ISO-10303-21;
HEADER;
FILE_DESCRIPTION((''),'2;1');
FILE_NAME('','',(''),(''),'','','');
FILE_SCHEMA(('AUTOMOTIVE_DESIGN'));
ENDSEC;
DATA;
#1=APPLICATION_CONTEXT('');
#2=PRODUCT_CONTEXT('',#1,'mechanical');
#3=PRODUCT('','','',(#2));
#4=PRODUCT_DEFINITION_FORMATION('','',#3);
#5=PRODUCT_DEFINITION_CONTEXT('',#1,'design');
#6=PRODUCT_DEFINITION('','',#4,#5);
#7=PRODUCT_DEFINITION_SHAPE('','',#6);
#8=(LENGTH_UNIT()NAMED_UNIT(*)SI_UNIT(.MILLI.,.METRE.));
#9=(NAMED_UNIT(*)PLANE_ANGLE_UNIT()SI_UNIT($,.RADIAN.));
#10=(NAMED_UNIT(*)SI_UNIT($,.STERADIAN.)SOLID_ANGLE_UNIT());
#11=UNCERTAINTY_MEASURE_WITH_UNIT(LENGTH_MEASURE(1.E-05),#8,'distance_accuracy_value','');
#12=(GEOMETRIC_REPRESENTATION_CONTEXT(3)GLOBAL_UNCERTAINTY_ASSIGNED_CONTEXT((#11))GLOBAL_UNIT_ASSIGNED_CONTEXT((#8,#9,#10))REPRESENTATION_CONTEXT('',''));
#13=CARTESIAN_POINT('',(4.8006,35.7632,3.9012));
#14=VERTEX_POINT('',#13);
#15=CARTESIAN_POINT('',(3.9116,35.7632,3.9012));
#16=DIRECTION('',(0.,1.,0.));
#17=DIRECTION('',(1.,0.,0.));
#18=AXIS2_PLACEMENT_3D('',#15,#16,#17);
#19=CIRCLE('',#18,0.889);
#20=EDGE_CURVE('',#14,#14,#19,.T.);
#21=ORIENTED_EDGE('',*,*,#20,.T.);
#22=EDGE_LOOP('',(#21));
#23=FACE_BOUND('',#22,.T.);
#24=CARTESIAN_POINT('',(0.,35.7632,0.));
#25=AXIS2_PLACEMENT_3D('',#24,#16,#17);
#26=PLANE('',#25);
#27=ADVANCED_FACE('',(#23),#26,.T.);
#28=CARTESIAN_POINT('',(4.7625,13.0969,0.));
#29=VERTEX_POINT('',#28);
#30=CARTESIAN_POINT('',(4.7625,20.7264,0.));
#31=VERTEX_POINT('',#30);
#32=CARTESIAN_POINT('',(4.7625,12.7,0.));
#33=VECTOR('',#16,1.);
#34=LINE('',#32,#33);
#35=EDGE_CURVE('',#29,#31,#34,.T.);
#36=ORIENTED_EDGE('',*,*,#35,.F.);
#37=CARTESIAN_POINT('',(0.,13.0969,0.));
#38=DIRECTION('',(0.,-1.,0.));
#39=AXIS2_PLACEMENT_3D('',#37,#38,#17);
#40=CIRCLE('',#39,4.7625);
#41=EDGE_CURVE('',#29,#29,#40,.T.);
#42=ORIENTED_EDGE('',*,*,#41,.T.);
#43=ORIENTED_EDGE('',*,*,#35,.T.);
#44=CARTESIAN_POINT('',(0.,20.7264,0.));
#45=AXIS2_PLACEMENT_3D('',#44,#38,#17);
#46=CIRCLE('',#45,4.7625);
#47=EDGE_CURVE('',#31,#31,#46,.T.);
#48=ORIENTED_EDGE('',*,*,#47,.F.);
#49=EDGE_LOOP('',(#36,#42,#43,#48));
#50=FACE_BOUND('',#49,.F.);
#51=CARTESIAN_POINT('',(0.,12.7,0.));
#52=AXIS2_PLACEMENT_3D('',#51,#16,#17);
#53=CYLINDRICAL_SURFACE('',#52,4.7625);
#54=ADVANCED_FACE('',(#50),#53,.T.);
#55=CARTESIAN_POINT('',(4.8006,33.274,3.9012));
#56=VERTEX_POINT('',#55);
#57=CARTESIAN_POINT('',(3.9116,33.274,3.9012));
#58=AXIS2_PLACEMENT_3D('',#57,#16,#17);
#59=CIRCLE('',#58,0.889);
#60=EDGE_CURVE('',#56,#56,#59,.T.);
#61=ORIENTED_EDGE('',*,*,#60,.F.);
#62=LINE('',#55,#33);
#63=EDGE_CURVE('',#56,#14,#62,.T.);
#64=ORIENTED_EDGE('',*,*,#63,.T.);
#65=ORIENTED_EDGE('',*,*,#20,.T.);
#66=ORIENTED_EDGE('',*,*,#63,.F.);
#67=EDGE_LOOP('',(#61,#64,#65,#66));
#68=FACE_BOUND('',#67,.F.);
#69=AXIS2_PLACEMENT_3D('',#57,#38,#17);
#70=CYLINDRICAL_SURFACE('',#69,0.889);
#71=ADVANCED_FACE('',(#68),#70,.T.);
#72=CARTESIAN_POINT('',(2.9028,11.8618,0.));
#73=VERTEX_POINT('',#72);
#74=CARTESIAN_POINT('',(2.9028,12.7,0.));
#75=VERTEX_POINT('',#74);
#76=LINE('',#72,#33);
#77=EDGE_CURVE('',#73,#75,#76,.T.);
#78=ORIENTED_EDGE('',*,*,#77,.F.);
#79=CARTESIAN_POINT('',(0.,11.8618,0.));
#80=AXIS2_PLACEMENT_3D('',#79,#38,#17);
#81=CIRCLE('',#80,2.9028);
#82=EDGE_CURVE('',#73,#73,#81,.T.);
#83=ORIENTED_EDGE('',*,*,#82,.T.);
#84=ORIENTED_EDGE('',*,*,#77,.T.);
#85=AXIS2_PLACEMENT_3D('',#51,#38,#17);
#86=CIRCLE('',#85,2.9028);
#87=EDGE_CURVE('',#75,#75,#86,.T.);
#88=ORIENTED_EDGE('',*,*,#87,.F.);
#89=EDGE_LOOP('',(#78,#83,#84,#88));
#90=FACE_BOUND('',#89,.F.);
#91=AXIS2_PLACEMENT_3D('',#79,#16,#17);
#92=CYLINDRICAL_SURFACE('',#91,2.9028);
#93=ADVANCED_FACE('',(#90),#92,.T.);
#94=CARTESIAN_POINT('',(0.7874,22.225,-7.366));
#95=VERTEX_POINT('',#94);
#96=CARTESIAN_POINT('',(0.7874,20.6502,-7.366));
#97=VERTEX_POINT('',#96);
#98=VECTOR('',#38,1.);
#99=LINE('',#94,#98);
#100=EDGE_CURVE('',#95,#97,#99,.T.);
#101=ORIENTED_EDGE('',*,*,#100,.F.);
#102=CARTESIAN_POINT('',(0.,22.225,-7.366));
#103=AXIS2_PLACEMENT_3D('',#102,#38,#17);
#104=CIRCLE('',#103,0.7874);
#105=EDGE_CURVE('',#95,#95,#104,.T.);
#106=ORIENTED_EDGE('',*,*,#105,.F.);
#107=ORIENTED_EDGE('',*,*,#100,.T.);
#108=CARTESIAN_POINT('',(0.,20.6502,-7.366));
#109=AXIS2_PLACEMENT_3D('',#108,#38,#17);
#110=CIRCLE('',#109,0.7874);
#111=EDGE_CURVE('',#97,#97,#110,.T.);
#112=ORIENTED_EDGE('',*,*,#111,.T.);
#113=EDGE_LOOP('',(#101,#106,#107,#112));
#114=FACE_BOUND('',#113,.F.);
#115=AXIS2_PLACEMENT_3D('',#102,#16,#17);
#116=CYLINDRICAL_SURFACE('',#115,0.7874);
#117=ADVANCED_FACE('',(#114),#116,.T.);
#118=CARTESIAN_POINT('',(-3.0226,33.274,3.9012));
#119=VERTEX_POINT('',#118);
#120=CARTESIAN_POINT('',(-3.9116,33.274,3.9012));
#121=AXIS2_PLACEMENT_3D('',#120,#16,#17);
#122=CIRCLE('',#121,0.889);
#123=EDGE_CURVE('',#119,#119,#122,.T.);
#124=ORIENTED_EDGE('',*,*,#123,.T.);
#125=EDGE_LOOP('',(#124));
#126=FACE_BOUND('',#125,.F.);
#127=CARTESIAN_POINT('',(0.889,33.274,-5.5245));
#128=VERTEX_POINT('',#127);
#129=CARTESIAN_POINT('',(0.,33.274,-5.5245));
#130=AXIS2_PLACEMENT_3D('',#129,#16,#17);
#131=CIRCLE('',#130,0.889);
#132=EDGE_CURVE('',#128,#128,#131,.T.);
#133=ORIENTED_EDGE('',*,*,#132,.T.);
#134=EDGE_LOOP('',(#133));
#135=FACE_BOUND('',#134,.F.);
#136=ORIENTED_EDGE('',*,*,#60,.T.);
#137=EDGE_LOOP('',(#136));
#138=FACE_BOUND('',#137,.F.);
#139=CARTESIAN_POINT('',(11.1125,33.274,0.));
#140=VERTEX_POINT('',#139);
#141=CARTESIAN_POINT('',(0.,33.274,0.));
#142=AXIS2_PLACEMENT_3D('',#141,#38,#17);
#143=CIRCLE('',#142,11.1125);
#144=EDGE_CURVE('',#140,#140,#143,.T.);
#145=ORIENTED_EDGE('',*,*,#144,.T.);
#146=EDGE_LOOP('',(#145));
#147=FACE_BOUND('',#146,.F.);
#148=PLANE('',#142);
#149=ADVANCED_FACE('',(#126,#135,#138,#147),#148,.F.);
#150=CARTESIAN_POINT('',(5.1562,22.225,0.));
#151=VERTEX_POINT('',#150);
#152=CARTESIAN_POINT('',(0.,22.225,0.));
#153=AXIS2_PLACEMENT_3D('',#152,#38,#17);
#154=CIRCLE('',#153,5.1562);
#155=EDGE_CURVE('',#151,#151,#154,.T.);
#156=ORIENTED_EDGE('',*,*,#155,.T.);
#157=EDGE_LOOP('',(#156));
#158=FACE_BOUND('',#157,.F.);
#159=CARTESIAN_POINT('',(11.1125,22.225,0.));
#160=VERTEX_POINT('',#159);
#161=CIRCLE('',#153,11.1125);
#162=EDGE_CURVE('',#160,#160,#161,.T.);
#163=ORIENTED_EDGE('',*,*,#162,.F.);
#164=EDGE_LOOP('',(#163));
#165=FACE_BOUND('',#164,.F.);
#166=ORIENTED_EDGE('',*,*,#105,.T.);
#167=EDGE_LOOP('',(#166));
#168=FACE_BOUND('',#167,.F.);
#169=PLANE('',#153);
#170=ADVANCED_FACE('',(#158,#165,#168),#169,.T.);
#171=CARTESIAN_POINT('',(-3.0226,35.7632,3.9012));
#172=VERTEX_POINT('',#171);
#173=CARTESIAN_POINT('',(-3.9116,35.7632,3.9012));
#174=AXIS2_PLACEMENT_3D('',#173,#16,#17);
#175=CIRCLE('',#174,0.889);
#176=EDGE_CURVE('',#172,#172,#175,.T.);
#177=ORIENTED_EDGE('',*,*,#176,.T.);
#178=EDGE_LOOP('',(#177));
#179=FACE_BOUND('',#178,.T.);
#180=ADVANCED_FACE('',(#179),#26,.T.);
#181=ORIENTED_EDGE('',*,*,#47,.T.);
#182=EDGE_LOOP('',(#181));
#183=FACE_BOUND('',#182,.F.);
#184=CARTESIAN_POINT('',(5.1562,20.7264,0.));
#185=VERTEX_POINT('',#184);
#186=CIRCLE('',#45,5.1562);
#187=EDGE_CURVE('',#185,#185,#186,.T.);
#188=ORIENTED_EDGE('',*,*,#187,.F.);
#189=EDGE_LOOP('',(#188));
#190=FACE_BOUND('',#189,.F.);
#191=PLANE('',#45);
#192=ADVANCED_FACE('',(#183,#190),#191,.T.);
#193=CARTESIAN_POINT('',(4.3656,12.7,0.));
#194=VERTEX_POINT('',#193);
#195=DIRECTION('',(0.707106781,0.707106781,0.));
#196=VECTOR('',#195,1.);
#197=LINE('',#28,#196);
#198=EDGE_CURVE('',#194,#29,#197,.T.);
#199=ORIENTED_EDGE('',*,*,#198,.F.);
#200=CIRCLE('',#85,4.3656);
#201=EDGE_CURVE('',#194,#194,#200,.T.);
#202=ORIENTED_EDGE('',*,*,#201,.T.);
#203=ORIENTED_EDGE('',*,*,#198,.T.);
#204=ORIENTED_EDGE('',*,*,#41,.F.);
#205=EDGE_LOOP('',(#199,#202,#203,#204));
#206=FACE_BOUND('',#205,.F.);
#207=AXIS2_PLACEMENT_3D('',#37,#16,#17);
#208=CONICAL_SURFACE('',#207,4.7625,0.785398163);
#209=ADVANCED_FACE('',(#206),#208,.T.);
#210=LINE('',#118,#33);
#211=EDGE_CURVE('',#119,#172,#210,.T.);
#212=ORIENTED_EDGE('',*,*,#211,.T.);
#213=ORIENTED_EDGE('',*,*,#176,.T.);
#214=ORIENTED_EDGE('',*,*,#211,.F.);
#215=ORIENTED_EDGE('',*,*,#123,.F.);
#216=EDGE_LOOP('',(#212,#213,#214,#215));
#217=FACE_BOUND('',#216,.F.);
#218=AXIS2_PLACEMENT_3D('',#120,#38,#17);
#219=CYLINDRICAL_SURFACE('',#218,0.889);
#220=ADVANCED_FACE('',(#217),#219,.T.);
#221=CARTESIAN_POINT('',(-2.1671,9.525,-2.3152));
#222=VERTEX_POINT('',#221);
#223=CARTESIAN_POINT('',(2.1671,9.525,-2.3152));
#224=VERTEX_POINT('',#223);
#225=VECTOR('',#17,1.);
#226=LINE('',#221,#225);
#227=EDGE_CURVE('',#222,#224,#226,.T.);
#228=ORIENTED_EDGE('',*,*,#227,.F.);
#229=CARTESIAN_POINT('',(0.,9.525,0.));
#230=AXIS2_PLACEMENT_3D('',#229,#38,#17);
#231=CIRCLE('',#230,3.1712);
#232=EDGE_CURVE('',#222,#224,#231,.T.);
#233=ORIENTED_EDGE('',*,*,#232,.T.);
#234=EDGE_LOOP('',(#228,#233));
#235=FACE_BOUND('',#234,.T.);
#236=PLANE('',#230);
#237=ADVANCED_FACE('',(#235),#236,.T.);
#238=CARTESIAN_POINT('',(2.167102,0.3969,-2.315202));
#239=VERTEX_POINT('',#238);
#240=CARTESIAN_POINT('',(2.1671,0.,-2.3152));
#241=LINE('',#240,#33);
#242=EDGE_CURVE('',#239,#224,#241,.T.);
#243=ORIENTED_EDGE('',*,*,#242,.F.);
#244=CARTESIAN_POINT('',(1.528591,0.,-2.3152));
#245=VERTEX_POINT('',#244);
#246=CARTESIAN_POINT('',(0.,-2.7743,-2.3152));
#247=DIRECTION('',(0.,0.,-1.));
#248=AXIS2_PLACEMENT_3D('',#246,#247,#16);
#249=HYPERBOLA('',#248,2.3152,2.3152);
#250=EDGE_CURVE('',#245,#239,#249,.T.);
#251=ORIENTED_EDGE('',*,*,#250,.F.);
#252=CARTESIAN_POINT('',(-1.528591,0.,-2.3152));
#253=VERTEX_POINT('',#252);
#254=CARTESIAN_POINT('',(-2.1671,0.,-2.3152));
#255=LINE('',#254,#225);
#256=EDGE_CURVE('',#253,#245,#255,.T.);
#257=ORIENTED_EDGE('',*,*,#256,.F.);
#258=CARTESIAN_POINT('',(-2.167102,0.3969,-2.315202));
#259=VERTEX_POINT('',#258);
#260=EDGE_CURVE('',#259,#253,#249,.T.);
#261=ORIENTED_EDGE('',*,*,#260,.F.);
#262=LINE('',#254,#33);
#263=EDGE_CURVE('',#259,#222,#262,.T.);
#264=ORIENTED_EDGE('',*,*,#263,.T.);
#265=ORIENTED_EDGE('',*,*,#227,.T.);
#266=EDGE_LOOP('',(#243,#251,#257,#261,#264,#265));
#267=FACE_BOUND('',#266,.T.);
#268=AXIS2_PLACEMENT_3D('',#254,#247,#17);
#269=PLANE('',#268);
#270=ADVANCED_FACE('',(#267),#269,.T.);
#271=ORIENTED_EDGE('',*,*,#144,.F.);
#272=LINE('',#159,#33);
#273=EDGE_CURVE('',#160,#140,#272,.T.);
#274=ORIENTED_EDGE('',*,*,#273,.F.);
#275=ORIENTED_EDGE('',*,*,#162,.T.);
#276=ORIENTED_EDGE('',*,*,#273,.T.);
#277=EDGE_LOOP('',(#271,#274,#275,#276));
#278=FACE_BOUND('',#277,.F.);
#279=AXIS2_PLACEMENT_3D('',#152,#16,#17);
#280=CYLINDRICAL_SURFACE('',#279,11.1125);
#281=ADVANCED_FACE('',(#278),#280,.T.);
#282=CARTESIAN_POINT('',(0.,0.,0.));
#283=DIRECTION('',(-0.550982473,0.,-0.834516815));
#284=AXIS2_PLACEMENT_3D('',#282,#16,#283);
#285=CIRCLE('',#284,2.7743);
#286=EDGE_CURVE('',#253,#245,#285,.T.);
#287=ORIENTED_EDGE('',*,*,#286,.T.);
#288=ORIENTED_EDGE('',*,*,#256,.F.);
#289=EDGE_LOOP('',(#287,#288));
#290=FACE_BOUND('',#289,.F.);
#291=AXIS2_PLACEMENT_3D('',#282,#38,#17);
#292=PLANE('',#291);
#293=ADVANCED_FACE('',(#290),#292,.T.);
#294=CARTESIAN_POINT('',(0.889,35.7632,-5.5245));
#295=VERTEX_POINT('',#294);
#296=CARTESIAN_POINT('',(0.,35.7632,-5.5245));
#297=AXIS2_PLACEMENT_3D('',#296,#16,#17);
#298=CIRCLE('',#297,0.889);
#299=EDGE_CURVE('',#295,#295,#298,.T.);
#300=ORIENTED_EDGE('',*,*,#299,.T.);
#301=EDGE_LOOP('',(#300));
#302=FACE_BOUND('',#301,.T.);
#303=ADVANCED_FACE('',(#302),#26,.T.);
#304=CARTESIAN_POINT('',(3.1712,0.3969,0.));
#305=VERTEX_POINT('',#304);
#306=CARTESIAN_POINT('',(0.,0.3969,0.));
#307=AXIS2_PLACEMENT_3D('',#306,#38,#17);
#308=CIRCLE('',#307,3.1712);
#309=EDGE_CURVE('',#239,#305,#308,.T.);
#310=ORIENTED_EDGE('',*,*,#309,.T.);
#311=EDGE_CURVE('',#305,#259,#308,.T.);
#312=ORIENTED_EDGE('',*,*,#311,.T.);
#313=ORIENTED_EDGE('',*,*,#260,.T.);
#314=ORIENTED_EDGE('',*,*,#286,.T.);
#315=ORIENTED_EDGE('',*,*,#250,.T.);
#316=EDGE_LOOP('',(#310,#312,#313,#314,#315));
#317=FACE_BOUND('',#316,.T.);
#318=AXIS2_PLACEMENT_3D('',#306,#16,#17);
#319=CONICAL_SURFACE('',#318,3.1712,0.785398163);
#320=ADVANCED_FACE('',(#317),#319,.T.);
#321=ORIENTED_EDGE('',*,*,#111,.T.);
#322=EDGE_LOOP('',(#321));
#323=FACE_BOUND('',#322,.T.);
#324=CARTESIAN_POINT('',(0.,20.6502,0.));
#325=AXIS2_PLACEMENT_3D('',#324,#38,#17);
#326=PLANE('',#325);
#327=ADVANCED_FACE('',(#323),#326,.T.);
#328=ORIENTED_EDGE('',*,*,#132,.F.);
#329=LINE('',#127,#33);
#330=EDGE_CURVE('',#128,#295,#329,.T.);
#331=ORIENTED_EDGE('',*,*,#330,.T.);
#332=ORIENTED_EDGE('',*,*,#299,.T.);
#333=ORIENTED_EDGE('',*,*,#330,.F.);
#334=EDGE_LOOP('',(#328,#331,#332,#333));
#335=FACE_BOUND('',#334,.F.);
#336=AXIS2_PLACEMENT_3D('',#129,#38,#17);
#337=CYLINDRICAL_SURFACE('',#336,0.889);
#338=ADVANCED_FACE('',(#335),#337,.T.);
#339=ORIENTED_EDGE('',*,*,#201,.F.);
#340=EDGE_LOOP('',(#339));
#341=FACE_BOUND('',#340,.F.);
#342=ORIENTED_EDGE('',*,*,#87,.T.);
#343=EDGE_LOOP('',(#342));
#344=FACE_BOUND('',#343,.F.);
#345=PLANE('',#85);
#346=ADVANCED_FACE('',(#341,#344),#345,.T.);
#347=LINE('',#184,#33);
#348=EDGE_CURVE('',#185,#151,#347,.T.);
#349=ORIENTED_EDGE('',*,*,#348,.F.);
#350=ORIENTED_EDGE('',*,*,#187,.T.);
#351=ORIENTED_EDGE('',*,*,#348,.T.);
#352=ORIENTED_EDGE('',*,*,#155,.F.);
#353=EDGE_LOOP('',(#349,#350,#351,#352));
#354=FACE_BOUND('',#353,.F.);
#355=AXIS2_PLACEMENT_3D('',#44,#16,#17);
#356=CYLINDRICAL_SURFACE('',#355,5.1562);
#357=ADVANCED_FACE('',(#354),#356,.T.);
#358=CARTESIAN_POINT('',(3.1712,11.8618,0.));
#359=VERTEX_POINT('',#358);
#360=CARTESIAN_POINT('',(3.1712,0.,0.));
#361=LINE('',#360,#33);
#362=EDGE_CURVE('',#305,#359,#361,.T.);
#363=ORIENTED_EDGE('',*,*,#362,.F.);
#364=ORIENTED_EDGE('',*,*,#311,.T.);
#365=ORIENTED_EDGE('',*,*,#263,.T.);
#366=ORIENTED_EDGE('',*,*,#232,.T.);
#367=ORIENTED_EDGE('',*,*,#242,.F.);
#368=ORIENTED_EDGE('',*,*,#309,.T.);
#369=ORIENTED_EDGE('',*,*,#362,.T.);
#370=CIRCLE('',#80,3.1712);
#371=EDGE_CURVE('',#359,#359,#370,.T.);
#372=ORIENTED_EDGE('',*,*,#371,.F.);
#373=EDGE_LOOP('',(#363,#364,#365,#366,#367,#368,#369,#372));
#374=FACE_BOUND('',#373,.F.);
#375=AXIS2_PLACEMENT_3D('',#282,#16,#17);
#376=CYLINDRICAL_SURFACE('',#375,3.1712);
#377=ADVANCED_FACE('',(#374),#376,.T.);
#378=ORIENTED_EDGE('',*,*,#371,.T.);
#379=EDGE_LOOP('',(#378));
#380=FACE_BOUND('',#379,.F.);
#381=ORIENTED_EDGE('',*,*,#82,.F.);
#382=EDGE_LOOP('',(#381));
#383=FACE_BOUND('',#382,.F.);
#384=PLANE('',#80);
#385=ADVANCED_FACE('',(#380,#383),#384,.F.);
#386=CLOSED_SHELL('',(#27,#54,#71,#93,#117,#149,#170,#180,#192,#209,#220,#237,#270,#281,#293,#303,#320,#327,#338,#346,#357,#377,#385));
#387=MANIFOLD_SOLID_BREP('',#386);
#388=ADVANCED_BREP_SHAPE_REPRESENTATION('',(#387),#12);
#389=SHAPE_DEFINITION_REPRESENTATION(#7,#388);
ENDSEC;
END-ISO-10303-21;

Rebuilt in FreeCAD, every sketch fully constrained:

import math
import FreeCAD as App
import Part
import Sketcher
Q = App.Units.Quantity


def edges_at(feature, points):
    """Names of the edges that pass closest to the given points."""
    edges = feature.Shape.Edges
    near = lambda p: min(range(len(edges)), key=lambda i: edges[i].distToShape(Part.Vertex(*p))[0])
    return sorted({f"Edge{near(p) + 1}" for p in points})

doc = App.newDocument("Part")
body = doc.addObject("PartDesign::Body", "Body")

sketch1 = body.newObject("Sketcher::SketchObject", "Sketch")
sketch1.AttachmentSupport = (doc.getObject("XY_Plane"), [""])
sketch1.MapMode = "FlatFace"
sketch1.addGeometry([
    Part.LineSegment(App.Vector(0, 0, 0), App.Vector(3.17, 0, 0)),
    Part.LineSegment(App.Vector(3.17, 0, 0), App.Vector(3.17, 11.86, 0)),
    Part.LineSegment(App.Vector(3.17, 11.86, 0), App.Vector(2.9, 11.86, 0)),
    Part.LineSegment(App.Vector(2.9, 11.86, 0), App.Vector(2.9, 12.7, 0)),
    Part.LineSegment(App.Vector(2.9, 12.7, 0), App.Vector(4.76, 12.7, 0)),
    Part.LineSegment(App.Vector(4.76, 12.7, 0), App.Vector(4.76, 20.73, 0)),
    Part.LineSegment(App.Vector(4.76, 20.73, 0), App.Vector(5.16, 20.73, 0)),
    Part.LineSegment(App.Vector(5.16, 20.73, 0), App.Vector(5.16, 22.23, 0)),
    Part.LineSegment(App.Vector(5.16, 22.23, 0), App.Vector(11.11, 22.23, 0)),
    Part.LineSegment(App.Vector(11.11, 22.23, 0), App.Vector(11.11, 33.27, 0)),
    Part.LineSegment(App.Vector(11.11, 33.27, 0), App.Vector(0, 33.27, 0)),
    Part.LineSegment(App.Vector(0, 33.27, 0), App.Vector(0, 0, 0)),
], False)
sketch1.addConstraint([
    Sketcher.Constraint("Coincident", 0, 2, 1, 1),
    Sketcher.Constraint("Coincident", 1, 2, 2, 1),
    Sketcher.Constraint("Coincident", 2, 2, 3, 1),
    Sketcher.Constraint("Coincident", 3, 2, 4, 1),
    Sketcher.Constraint("Coincident", 4, 2, 5, 1),
    Sketcher.Constraint("Coincident", 5, 2, 6, 1),
    Sketcher.Constraint("Coincident", 6, 2, 7, 1),
    Sketcher.Constraint("Coincident", 7, 2, 8, 1),
    Sketcher.Constraint("Coincident", 8, 2, 9, 1),
    Sketcher.Constraint("Coincident", 9, 2, 10, 1),
    Sketcher.Constraint("Coincident", 10, 2, 11, 1),
    Sketcher.Constraint("Coincident", 11, 2, 0, 1),
    Sketcher.Constraint("Horizontal", 0),
    Sketcher.Constraint("Vertical", 1),
    Sketcher.Constraint("Horizontal", 2),
    Sketcher.Constraint("Vertical", 3),
    Sketcher.Constraint("Horizontal", 4),
    Sketcher.Constraint("Vertical", 5),
    Sketcher.Constraint("Horizontal", 6),
    Sketcher.Constraint("Vertical", 7),
    Sketcher.Constraint("Horizontal", 8),
    Sketcher.Constraint("Vertical", 9),
    Sketcher.Constraint("Horizontal", 10),
    Sketcher.Constraint("Vertical", 11),
    Sketcher.Constraint("Coincident", 11, 2, -1, 1),
    Sketcher.Constraint("DistanceX", 10, 2, 10, 1, Q("0.4375 in")),
    Sketcher.Constraint("DistanceY", 3, 1, 3, 2, Q("0.033 in")),
    Sketcher.Constraint("DistanceY", 7, 1, 7, 2, Q("0.059 in")),
    Sketcher.Constraint("DistanceY", 9, 1, 9, 2, Q("0.435 in")),
    Sketcher.Constraint("DistanceX", -1, 1, 4, 2, Q("0.1875 in")),
    Sketcher.Constraint("DistanceX", -1, 1, 6, 2, Q("0.203 in")),
    Sketcher.Constraint("DistanceY", -1, 1, 7, 2, Q("0.875 in")),
    Sketcher.Constraint("DistanceY", 4, 2, 7, 2, Q("0.375 in")),
    Sketcher.Constraint("DistanceX", 0, 1, 0, 2, Q("3.1712 mm")),
    Sketcher.Constraint("DistanceX", 2, 2, 2, 1, Q("0.2684 mm")),
])
revolution = body.newObject("PartDesign::Revolution", "Revolution")
revolution.Profile = sketch1
revolution.ReferenceAxis = (sketch1, ["V_Axis"])
revolution.Angle = 360
doc.recompute()

chamfer = body.newObject("PartDesign::Chamfer", "Chamfer")
chamfer.Base = (revolution, edges_at(revolution, [(-3.171, 0, 0), (-4.763, 12.7, 0)]))
chamfer.Size = Q("0.015626 in")

sketch2 = body.newObject("Sketcher::SketchObject", "Sketch001")
sketch2.AttachmentSupport = (doc.getObject("XZ_Plane"), [""])
sketch2.MapMode = "FlatFace"
sketch2.AttachmentOffset = App.Placement(App.Vector(0, 0, -0.875 * 25.4), App.Rotation())
sketch2.addGeometry(Part.Circle(App.Vector(0, -7.4, 0), App.Vector(0, 0, 1), 0.8), False)
sketch2.addConstraint([
    Sketcher.Constraint("PointOnObject", 0, 3, -2),
    Sketcher.Constraint("Diameter", 0, Q("0.062 in")),
    Sketcher.Constraint("DistanceY", 0, 3, -1, 1, Q("0.29 in")),
])
pad1 = body.newObject("PartDesign::Pad", "Pad")
pad1.Profile = sketch2
pad1.Length = Q("0.062 in")

sketch3 = body.newObject("Sketcher::SketchObject", "Sketch002")
sketch3.AttachmentSupport = (doc.getObject("XZ_Plane"), [""])
sketch3.MapMode = "FlatFace"
sketch3.addGeometry([
    Part.LineSegment(App.Vector(2.2, -2.3, 0), App.Vector(-2.2, -2.3, 0)),
    Part.ArcOfCircle(Part.Circle(App.Vector(0, 0, 0), App.Vector(0, 0, 1), 3.2), math.radians(-133), math.radians(-47)),
], False)
sketch3.addConstraint([
    Sketcher.Constraint("Coincident", 0, 1, 1, 2),
    Sketcher.Constraint("Coincident", 1, 1, 0, 2),
    Sketcher.Constraint("Horizontal", 0),
    Sketcher.Constraint("Coincident", 1, 3, -1, 1),
    Sketcher.Constraint("Radius", 1, Q("3.1712 mm")),
    Sketcher.Constraint("DistanceX", 0, 2, 0, 1, Q("4.3342 mm")),
])
pocket1 = body.newObject("PartDesign::Pocket", "Pocket")
pocket1.Profile = sketch3
pocket1.Length = Q("0.375 in")

sketch4 = body.newObject("Sketcher::SketchObject", "Sketch003")
sketch4.AttachmentSupport = (doc.getObject("XZ_Plane"), [""])
sketch4.MapMode = "FlatFace"
sketch4.AttachmentOffset = App.Placement(App.Vector(0, 0, -1.31 * 25.4), App.Rotation())
sketch4.addGeometry([
    Part.Circle(App.Vector(3.9, 3.9, 0), App.Vector(0, 0, 1), 0.9),
    Part.Circle(App.Vector(-3.9, 3.9, 0), App.Vector(0, 0, 1), 0.9),
    Part.Circle(App.Vector(0, -5.5, 0), App.Vector(0, 0, 1), 0.9),
], False)
sketch4.addConstraint([
    Sketcher.Constraint("Equal", 0, 1),
    Sketcher.Constraint("Equal", 1, 2),
    Sketcher.Constraint("Symmetric", 0, 3, 1, 3, -2),
    Sketcher.Constraint("PointOnObject", 2, 3, -2),
    Sketcher.Constraint("Diameter", 0, Q("0.07 in")),
    Sketcher.Constraint("DistanceX", 1, 3, 0, 3, Q("0.308 in")),
    Sketcher.Constraint("DistanceY", -1, 1, 0, 3, Q("0.1536 in")),
    Sketcher.Constraint("DistanceY", 2, 3, -1, 1, Q("0.2175 in")),
])
pad2 = body.newObject("PartDesign::Pad", "Pad001")
pad2.Profile = sketch4
pad2.Length = Q("0.098 in")
pad2.Reversed = True

doc.recompute()
